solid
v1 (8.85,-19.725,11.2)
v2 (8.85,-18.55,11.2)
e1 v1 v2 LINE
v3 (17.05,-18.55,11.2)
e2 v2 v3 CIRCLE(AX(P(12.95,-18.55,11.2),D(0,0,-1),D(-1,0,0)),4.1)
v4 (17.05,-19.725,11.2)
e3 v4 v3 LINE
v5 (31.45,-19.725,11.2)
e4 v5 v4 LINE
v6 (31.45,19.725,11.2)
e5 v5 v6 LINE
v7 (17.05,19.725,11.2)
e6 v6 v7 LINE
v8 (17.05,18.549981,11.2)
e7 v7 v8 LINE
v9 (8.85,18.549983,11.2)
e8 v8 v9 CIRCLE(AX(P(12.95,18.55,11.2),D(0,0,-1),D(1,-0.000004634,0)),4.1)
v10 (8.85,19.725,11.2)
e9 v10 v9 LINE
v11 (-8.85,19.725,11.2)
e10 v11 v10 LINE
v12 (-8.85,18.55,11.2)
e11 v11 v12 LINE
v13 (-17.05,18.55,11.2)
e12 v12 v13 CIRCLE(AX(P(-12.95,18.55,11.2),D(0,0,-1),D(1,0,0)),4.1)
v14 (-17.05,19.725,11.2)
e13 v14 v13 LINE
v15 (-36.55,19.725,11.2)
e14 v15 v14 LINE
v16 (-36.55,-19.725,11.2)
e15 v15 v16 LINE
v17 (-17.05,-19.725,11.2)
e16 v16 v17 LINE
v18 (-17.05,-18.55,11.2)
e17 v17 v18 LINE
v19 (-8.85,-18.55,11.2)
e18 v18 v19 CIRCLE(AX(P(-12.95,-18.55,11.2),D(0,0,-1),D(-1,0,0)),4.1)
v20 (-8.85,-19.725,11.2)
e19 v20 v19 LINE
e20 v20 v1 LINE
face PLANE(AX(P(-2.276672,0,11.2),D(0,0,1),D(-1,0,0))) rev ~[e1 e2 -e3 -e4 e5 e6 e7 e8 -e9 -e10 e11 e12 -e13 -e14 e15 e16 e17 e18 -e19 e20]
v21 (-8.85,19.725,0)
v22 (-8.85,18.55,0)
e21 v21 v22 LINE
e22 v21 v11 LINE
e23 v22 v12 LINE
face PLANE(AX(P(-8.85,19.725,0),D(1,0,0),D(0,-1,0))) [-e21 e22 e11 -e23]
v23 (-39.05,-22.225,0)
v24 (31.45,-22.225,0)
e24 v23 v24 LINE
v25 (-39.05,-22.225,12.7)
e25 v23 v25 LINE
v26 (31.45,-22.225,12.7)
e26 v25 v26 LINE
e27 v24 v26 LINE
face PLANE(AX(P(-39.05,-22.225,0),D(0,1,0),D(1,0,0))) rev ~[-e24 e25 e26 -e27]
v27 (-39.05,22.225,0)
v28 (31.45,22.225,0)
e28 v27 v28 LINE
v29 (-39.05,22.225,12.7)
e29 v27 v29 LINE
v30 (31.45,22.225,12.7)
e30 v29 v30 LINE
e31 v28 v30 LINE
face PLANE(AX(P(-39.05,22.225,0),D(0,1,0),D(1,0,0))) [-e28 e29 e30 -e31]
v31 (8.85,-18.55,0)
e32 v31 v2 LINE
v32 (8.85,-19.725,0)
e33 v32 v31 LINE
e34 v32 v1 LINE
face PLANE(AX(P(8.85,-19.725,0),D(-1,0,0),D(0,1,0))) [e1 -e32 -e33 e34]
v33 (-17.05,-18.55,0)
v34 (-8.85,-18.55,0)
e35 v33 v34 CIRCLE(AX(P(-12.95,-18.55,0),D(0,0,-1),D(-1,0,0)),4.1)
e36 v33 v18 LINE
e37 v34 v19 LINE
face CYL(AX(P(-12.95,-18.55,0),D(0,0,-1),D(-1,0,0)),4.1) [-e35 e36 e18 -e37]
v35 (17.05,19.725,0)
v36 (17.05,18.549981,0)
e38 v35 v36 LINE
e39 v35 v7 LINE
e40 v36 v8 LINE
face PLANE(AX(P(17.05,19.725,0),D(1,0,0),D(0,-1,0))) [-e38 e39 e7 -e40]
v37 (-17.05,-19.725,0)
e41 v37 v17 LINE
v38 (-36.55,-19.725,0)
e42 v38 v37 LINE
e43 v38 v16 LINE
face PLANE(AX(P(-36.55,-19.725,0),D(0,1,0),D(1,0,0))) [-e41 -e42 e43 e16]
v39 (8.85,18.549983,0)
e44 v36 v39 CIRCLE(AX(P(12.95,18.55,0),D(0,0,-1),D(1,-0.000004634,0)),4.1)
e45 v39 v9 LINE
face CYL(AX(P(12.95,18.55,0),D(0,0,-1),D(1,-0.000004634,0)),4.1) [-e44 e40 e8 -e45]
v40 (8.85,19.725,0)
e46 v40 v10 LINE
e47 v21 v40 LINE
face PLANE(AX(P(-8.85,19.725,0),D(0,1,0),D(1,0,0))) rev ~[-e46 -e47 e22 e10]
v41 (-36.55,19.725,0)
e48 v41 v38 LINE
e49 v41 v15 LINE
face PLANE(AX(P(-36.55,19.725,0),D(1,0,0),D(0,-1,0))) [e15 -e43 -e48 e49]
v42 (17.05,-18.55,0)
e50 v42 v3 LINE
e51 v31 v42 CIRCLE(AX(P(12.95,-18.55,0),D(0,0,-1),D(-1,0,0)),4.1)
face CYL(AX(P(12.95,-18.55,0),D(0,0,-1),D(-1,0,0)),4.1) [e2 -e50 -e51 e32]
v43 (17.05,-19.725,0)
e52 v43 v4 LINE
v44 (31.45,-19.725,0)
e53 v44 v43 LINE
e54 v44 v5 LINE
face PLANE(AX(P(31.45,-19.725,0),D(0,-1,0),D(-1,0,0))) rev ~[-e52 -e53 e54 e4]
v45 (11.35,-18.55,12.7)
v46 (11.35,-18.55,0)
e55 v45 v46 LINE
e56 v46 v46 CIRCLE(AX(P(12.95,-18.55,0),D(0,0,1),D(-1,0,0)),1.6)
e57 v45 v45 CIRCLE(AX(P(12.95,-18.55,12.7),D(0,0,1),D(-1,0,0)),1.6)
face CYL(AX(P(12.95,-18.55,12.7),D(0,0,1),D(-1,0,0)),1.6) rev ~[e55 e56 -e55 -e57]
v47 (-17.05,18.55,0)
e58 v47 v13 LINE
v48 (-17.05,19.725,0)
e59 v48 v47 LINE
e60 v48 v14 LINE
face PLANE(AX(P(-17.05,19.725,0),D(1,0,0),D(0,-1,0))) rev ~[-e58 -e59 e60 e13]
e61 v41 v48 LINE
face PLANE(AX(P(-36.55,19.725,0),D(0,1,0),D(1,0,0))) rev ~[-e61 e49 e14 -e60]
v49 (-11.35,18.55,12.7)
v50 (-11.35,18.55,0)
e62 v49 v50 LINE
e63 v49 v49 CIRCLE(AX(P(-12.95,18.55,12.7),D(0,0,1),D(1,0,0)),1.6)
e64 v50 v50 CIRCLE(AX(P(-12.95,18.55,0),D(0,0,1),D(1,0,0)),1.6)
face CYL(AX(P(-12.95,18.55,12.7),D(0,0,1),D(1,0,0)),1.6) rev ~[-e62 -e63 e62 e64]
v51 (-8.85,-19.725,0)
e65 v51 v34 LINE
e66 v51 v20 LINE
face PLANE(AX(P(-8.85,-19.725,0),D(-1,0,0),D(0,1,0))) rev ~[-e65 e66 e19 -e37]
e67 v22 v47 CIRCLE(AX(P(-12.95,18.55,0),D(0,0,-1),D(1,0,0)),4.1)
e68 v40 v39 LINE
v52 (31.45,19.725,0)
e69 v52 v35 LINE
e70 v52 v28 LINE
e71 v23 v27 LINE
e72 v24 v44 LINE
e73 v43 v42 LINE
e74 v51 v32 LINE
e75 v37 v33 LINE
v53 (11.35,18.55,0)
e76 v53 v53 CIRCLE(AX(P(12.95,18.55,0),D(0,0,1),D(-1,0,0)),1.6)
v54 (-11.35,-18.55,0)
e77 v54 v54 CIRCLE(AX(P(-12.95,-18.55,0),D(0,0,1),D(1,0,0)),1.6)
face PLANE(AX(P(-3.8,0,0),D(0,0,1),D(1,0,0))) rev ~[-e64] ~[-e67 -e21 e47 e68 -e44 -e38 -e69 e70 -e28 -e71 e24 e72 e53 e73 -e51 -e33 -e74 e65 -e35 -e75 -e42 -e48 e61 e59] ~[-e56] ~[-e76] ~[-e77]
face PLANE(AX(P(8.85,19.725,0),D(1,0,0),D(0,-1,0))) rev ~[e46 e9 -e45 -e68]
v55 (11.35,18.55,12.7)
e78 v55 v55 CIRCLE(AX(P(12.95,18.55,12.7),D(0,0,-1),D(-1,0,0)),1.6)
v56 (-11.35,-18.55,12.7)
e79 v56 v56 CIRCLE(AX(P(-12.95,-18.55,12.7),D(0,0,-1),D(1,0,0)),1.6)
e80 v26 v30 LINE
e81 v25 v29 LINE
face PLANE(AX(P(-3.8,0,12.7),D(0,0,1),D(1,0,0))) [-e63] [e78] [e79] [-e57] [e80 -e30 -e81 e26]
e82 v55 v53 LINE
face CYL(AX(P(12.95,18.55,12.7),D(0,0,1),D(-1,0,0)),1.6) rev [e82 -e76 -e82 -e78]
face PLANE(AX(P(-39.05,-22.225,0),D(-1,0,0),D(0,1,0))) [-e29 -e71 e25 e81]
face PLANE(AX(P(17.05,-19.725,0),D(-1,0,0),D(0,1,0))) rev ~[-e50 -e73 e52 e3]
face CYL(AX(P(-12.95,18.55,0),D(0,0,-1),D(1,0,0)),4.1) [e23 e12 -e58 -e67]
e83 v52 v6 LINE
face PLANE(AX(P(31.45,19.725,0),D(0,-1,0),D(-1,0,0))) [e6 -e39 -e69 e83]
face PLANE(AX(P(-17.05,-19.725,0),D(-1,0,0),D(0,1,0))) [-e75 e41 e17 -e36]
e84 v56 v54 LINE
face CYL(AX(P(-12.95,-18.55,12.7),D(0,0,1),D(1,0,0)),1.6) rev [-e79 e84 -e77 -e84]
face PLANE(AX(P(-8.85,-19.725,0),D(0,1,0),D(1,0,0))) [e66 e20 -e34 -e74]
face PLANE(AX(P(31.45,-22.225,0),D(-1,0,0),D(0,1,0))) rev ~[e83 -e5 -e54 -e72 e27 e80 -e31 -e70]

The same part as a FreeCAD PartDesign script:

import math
import FreeCAD as App
import Part
import Sketcher

V = App.Vector


def add_polygon(sketch, points):
    """Adds a closed chain of lines whose ends are joined by coincident constraints."""
    first, n = sketch.GeometryCount, len(points)
    for a, b in zip(points, points[1:] + points[:1]):
        sketch.addGeometry(Part.LineSegment(App.Vector(*a, 0), App.Vector(*b, 0)), False)
    for i in range(n):
        sketch.addConstraint(Sketcher.Constraint("Coincident", first + i, 2, first + (i + 1) % n, 1))

doc = App.newDocument("Part")
body = doc.addObject("PartDesign::Body", "Body")

sketch1 = doc.addObject("Sketcher::SketchObject", "Sketch")
body.addObject(sketch1)
sketch1.AttachmentSupport = (doc.XY_Plane, [""])
sketch1.MapMode = "FlatFace"
add_polygon(sketch1, [(-39.05, 22.225), (-39.05, -22.225), (31.45, -22.225), (31.45, 22.225)])
sketch1.addConstraint([
    Sketcher.Constraint("Vertical", 0),
    Sketcher.Constraint("Horizontal", 1),
    Sketcher.Constraint("Vertical", 2),
    Sketcher.Constraint("Horizontal", 3),
    Sketcher.Constraint("DistanceX", 1, 1, 1, 2, 70.5),
    Sketcher.Constraint("DistanceY", 0, 2, 0, 1, 44.45),
    Sketcher.Constraint("DistanceX", 0, 2, -1, 1, 39.05),
    Sketcher.Constraint("DistanceY", 0, 2, -1, 1, 22.225),
])
pad1 = doc.addObject("PartDesign::Pad", "Pad")
body.addObject(pad1)
pad1.Profile = sketch1
pad1.Length = 12.7

sketch2 = doc.addObject("Sketcher::SketchObject", "Sketch001")
body.addObject(sketch2)
sketch2.AttachmentSupport = (doc.XY_Plane, [""])
sketch2.MapMode = "FlatFace"
sketch2.AttachmentOffset = App.Placement(V(0, 0, 12.7), App.Rotation())
sketch2.addGeometry(Part.Circle(V(-12.95, 18.55, 0), V(0, 0, 1), 1.6), False)
sketch2.addConstraint([
    Sketcher.Constraint("Diameter", 0, 3.2),
    Sketcher.Constraint("DistanceX", 0, 3, -1, 1, 12.95),
    Sketcher.Constraint("DistanceY", -1, 1, 0, 3, 18.55),
])
pocket1 = doc.addObject("PartDesign::Pocket", "Pocket")
body.addObject(pocket1)
pocket1.Profile = sketch2
pocket1.Type = "ThroughAll"

sketch3 = doc.addObject("Sketcher::SketchObject", "Sketch002")
body.addObject(sketch3)
sketch3.AttachmentSupport = (doc.XY_Plane, [""])
sketch3.MapMode = "FlatFace"
sketch3.AttachmentOffset = App.Placement(V(0, 0, 12.7), App.Rotation())
sketch3.addGeometry(Part.Circle(V(12.95, 18.55, 0), V(0, 0, 1), 1.6), False)
sketch3.addConstraint([
    Sketcher.Constraint("Diameter", 0, 3.2),
    Sketcher.Constraint("DistanceX", -1, 1, 0, 3, 12.95),
    Sketcher.Constraint("DistanceY", -1, 1, 0, 3, 18.55),
])
pocket2 = doc.addObject("PartDesign::Pocket", "Pocket001")
body.addObject(pocket2)
pocket2.Profile = sketch3
pocket2.Type = "ThroughAll"
doc.recompute()

mirrored = doc.addObject("PartDesign::Mirrored", "Mirrored")
body.addObject(mirrored)
mirrored.Originals = [pocket1, pocket2]
mirrored.MirrorPlane = (doc.XZ_Plane, [""])
body.Tip = mirrored

sketch4 = doc.addObject("Sketcher::SketchObject", "Sketch003")
body.addObject(sketch4)
sketch4.AttachmentSupport = (doc.XY_Plane, [""])
sketch4.MapMode = "FlatFace"
sketch4.addGeometry([
    Part.LineSegment(V(-36.55, -19.725, 0), V(-36.55, 19.725, 0)),
    Part.LineSegment(V(-36.55, 19.725, 0), V(-17.05, 19.725, 0)),
    Part.LineSegment(V(-17.05, 19.725, 0), V(-17.05, 18.55, 0)),
    Part.ArcOfCircle(Part.Circle(V(-12.95, 18.55, 0), V(0, 0, 1), 4.1), math.radians(180), math.radians(360)),
    Part.LineSegment(V(-8.85, 18.55, 0), V(-8.85, 19.725, 0)),
    Part.LineSegment(V(-8.85, 19.725, 0), V(8.85, 19.725, 0)),
    Part.LineSegment(V(8.85, 19.725, 0), V(8.85, 18.549983, 0)),
    Part.ArcOfCircle(Part.Circle(V(12.95, 18.55, 0), V(0, 0, 1), 4.1), math.radians(-179.999762), math.radians(-0.000266)),
    Part.LineSegment(V(17.05, 18.549981, 0), V(17.05, 19.725, 0)),
    Part.LineSegment(V(17.05, 19.725, 0), V(31.45, 19.725, 0)),
    Part.LineSegment(V(31.45, 19.725, 0), V(31.45, -19.725, 0)),
    Part.LineSegment(V(31.45, -19.725, 0), V(17.05, -19.725, 0)),
    Part.LineSegment(V(17.05, -19.725, 0), V(17.05, -18.55, 0)),
    Part.ArcOfCircle(Part.Circle(V(12.95, -18.55, 0), V(0, 0, 1), 4.1), math.radians(0), math.radians(180)),
    Part.LineSegment(V(8.85, -18.55, 0), V(8.85, -19.725, 0)),
    Part.LineSegment(V(8.85, -19.725, 0), V(-8.85, -19.725, 0)),
    Part.LineSegment(V(-8.85, -19.725, 0), V(-8.85, -18.55, 0)),
    Part.ArcOfCircle(Part.Circle(V(-12.95, -18.55, 0), V(0, 0, 1), 4.1), math.radians(0), math.radians(180)),
    Part.LineSegment(V(-17.05, -18.55, 0), V(-17.05, -19.725, 0)),
    Part.LineSegment(V(-17.05, -19.725, 0), V(-36.55, -19.725, 0)),
], False)
sketch4.addConstraint([
    Sketcher.Constraint("Coincident", 0, 2, 1, 1),
    Sketcher.Constraint("Coincident", 1, 2, 2, 1),
    Sketcher.Constraint("Tangent", 2, 2, 3, 1),
    Sketcher.Constraint("Tangent", 3, 2, 4, 1),
    Sketcher.Constraint("Coincident", 4, 2, 5, 1),
    Sketcher.Constraint("Coincident", 5, 2, 6, 1),
    Sketcher.Constraint("Coincident", 6, 2, 7, 1),
    Sketcher.Constraint("Coincident", 7, 2, 8, 1),
    Sketcher.Constraint("Coincident", 8, 2, 9, 1),
    Sketcher.Constraint("Coincident", 9, 2, 10, 1),
    Sketcher.Constraint("Coincident", 10, 2, 11, 1),
    Sketcher.Constraint("Coincident", 11, 2, 12, 1),
    Sketcher.Constraint("Tangent", 12, 2, 13, 1),
    Sketcher.Constraint("Tangent", 13, 2, 14, 1),
    Sketcher.Constraint("Coincident", 14, 2, 15, 1),
    Sketcher.Constraint("Coincident", 15, 2, 16, 1),
    Sketcher.Constraint("Tangent", 16, 2, 17, 1),
    Sketcher.Constraint("Tangent", 17, 2, 18, 1),
    Sketcher.Constraint("Coincident", 18, 2, 19, 1),
    Sketcher.Constraint("Coincident", 19, 2, 0, 1),
    Sketcher.Constraint("Vertical", 0),
    Sketcher.Constraint("Horizontal", 1),
    Sketcher.Constraint("Vertical", 2),
    Sketcher.Constraint("Vertical", 4),
    Sketcher.Constraint("Horizontal", 5),
    Sketcher.Constraint("Vertical", 6),
    Sketcher.Constraint("Vertical", 8),
    Sketcher.Constraint("Horizontal", 9),
    Sketcher.Constraint("Vertical", 10),
    Sketcher.Constraint("Horizontal", 11),
    Sketcher.Constraint("Vertical", 12),
    Sketcher.Constraint("Vertical", 14),
    Sketcher.Constraint("Horizontal", 15),
    Sketcher.Constraint("Vertical", 16),
    Sketcher.Constraint("Vertical", 18),
    Sketcher.Constraint("Horizontal", 19),
    Sketcher.Constraint("Equal", 3, 7),
    Sketcher.Constraint("Equal", 7, 13),
    Sketcher.Constraint("Equal", 13, 17),
    Sketcher.Constraint("Symmetric", 3, 3, 13, 3, -1, 1),
    Sketcher.Constraint("Symmetric", 7, 3, 17, 3, -1, 1),
    Sketcher.Constraint("Symmetric", 3, 3, 7, 3, -2),
    Sketcher.Constraint("Horizontal", 1, 2, 4, 2),
    Sketcher.Constraint("Horizontal", 5, 2, 8, 2),
    Sketcher.Constraint("Horizontal", 11, 2, 14, 2),
    Sketcher.Constraint("Horizontal", 15, 2, 18, 2),
    Sketcher.Constraint("Equal", 4, 12),
    Sketcher.Constraint("Radius", 3, 4.1),
    Sketcher.Constraint("DistanceX", 1, 1, 1, 2, 19.5),
    Sketcher.Constraint("DistanceX", 5, 1, 5, 2, 17.7),
    Sketcher.Constraint("DistanceX", 9, 1, 9, 2, 14.4),
    Sketcher.Constraint("DistanceY", 0, 1, 0, 2, 39.45),
    Sketcher.Constraint("DistanceY", 13, 3, 7, 3, 37.1),
    Sketcher.Constraint("DistanceY", 8, 1, 8, 2, 1.175019),
    Sketcher.Constraint("DistanceY", 6, 2, 6, 1, 1.175017),
])
pocket3 = doc.addObject("PartDesign::Pocket", "Pocket002")
body.addObject(pocket3)
pocket3.Profile = sketch4
pocket3.Length = 11.2
pocket3.Reversed = True

doc.recompute()
